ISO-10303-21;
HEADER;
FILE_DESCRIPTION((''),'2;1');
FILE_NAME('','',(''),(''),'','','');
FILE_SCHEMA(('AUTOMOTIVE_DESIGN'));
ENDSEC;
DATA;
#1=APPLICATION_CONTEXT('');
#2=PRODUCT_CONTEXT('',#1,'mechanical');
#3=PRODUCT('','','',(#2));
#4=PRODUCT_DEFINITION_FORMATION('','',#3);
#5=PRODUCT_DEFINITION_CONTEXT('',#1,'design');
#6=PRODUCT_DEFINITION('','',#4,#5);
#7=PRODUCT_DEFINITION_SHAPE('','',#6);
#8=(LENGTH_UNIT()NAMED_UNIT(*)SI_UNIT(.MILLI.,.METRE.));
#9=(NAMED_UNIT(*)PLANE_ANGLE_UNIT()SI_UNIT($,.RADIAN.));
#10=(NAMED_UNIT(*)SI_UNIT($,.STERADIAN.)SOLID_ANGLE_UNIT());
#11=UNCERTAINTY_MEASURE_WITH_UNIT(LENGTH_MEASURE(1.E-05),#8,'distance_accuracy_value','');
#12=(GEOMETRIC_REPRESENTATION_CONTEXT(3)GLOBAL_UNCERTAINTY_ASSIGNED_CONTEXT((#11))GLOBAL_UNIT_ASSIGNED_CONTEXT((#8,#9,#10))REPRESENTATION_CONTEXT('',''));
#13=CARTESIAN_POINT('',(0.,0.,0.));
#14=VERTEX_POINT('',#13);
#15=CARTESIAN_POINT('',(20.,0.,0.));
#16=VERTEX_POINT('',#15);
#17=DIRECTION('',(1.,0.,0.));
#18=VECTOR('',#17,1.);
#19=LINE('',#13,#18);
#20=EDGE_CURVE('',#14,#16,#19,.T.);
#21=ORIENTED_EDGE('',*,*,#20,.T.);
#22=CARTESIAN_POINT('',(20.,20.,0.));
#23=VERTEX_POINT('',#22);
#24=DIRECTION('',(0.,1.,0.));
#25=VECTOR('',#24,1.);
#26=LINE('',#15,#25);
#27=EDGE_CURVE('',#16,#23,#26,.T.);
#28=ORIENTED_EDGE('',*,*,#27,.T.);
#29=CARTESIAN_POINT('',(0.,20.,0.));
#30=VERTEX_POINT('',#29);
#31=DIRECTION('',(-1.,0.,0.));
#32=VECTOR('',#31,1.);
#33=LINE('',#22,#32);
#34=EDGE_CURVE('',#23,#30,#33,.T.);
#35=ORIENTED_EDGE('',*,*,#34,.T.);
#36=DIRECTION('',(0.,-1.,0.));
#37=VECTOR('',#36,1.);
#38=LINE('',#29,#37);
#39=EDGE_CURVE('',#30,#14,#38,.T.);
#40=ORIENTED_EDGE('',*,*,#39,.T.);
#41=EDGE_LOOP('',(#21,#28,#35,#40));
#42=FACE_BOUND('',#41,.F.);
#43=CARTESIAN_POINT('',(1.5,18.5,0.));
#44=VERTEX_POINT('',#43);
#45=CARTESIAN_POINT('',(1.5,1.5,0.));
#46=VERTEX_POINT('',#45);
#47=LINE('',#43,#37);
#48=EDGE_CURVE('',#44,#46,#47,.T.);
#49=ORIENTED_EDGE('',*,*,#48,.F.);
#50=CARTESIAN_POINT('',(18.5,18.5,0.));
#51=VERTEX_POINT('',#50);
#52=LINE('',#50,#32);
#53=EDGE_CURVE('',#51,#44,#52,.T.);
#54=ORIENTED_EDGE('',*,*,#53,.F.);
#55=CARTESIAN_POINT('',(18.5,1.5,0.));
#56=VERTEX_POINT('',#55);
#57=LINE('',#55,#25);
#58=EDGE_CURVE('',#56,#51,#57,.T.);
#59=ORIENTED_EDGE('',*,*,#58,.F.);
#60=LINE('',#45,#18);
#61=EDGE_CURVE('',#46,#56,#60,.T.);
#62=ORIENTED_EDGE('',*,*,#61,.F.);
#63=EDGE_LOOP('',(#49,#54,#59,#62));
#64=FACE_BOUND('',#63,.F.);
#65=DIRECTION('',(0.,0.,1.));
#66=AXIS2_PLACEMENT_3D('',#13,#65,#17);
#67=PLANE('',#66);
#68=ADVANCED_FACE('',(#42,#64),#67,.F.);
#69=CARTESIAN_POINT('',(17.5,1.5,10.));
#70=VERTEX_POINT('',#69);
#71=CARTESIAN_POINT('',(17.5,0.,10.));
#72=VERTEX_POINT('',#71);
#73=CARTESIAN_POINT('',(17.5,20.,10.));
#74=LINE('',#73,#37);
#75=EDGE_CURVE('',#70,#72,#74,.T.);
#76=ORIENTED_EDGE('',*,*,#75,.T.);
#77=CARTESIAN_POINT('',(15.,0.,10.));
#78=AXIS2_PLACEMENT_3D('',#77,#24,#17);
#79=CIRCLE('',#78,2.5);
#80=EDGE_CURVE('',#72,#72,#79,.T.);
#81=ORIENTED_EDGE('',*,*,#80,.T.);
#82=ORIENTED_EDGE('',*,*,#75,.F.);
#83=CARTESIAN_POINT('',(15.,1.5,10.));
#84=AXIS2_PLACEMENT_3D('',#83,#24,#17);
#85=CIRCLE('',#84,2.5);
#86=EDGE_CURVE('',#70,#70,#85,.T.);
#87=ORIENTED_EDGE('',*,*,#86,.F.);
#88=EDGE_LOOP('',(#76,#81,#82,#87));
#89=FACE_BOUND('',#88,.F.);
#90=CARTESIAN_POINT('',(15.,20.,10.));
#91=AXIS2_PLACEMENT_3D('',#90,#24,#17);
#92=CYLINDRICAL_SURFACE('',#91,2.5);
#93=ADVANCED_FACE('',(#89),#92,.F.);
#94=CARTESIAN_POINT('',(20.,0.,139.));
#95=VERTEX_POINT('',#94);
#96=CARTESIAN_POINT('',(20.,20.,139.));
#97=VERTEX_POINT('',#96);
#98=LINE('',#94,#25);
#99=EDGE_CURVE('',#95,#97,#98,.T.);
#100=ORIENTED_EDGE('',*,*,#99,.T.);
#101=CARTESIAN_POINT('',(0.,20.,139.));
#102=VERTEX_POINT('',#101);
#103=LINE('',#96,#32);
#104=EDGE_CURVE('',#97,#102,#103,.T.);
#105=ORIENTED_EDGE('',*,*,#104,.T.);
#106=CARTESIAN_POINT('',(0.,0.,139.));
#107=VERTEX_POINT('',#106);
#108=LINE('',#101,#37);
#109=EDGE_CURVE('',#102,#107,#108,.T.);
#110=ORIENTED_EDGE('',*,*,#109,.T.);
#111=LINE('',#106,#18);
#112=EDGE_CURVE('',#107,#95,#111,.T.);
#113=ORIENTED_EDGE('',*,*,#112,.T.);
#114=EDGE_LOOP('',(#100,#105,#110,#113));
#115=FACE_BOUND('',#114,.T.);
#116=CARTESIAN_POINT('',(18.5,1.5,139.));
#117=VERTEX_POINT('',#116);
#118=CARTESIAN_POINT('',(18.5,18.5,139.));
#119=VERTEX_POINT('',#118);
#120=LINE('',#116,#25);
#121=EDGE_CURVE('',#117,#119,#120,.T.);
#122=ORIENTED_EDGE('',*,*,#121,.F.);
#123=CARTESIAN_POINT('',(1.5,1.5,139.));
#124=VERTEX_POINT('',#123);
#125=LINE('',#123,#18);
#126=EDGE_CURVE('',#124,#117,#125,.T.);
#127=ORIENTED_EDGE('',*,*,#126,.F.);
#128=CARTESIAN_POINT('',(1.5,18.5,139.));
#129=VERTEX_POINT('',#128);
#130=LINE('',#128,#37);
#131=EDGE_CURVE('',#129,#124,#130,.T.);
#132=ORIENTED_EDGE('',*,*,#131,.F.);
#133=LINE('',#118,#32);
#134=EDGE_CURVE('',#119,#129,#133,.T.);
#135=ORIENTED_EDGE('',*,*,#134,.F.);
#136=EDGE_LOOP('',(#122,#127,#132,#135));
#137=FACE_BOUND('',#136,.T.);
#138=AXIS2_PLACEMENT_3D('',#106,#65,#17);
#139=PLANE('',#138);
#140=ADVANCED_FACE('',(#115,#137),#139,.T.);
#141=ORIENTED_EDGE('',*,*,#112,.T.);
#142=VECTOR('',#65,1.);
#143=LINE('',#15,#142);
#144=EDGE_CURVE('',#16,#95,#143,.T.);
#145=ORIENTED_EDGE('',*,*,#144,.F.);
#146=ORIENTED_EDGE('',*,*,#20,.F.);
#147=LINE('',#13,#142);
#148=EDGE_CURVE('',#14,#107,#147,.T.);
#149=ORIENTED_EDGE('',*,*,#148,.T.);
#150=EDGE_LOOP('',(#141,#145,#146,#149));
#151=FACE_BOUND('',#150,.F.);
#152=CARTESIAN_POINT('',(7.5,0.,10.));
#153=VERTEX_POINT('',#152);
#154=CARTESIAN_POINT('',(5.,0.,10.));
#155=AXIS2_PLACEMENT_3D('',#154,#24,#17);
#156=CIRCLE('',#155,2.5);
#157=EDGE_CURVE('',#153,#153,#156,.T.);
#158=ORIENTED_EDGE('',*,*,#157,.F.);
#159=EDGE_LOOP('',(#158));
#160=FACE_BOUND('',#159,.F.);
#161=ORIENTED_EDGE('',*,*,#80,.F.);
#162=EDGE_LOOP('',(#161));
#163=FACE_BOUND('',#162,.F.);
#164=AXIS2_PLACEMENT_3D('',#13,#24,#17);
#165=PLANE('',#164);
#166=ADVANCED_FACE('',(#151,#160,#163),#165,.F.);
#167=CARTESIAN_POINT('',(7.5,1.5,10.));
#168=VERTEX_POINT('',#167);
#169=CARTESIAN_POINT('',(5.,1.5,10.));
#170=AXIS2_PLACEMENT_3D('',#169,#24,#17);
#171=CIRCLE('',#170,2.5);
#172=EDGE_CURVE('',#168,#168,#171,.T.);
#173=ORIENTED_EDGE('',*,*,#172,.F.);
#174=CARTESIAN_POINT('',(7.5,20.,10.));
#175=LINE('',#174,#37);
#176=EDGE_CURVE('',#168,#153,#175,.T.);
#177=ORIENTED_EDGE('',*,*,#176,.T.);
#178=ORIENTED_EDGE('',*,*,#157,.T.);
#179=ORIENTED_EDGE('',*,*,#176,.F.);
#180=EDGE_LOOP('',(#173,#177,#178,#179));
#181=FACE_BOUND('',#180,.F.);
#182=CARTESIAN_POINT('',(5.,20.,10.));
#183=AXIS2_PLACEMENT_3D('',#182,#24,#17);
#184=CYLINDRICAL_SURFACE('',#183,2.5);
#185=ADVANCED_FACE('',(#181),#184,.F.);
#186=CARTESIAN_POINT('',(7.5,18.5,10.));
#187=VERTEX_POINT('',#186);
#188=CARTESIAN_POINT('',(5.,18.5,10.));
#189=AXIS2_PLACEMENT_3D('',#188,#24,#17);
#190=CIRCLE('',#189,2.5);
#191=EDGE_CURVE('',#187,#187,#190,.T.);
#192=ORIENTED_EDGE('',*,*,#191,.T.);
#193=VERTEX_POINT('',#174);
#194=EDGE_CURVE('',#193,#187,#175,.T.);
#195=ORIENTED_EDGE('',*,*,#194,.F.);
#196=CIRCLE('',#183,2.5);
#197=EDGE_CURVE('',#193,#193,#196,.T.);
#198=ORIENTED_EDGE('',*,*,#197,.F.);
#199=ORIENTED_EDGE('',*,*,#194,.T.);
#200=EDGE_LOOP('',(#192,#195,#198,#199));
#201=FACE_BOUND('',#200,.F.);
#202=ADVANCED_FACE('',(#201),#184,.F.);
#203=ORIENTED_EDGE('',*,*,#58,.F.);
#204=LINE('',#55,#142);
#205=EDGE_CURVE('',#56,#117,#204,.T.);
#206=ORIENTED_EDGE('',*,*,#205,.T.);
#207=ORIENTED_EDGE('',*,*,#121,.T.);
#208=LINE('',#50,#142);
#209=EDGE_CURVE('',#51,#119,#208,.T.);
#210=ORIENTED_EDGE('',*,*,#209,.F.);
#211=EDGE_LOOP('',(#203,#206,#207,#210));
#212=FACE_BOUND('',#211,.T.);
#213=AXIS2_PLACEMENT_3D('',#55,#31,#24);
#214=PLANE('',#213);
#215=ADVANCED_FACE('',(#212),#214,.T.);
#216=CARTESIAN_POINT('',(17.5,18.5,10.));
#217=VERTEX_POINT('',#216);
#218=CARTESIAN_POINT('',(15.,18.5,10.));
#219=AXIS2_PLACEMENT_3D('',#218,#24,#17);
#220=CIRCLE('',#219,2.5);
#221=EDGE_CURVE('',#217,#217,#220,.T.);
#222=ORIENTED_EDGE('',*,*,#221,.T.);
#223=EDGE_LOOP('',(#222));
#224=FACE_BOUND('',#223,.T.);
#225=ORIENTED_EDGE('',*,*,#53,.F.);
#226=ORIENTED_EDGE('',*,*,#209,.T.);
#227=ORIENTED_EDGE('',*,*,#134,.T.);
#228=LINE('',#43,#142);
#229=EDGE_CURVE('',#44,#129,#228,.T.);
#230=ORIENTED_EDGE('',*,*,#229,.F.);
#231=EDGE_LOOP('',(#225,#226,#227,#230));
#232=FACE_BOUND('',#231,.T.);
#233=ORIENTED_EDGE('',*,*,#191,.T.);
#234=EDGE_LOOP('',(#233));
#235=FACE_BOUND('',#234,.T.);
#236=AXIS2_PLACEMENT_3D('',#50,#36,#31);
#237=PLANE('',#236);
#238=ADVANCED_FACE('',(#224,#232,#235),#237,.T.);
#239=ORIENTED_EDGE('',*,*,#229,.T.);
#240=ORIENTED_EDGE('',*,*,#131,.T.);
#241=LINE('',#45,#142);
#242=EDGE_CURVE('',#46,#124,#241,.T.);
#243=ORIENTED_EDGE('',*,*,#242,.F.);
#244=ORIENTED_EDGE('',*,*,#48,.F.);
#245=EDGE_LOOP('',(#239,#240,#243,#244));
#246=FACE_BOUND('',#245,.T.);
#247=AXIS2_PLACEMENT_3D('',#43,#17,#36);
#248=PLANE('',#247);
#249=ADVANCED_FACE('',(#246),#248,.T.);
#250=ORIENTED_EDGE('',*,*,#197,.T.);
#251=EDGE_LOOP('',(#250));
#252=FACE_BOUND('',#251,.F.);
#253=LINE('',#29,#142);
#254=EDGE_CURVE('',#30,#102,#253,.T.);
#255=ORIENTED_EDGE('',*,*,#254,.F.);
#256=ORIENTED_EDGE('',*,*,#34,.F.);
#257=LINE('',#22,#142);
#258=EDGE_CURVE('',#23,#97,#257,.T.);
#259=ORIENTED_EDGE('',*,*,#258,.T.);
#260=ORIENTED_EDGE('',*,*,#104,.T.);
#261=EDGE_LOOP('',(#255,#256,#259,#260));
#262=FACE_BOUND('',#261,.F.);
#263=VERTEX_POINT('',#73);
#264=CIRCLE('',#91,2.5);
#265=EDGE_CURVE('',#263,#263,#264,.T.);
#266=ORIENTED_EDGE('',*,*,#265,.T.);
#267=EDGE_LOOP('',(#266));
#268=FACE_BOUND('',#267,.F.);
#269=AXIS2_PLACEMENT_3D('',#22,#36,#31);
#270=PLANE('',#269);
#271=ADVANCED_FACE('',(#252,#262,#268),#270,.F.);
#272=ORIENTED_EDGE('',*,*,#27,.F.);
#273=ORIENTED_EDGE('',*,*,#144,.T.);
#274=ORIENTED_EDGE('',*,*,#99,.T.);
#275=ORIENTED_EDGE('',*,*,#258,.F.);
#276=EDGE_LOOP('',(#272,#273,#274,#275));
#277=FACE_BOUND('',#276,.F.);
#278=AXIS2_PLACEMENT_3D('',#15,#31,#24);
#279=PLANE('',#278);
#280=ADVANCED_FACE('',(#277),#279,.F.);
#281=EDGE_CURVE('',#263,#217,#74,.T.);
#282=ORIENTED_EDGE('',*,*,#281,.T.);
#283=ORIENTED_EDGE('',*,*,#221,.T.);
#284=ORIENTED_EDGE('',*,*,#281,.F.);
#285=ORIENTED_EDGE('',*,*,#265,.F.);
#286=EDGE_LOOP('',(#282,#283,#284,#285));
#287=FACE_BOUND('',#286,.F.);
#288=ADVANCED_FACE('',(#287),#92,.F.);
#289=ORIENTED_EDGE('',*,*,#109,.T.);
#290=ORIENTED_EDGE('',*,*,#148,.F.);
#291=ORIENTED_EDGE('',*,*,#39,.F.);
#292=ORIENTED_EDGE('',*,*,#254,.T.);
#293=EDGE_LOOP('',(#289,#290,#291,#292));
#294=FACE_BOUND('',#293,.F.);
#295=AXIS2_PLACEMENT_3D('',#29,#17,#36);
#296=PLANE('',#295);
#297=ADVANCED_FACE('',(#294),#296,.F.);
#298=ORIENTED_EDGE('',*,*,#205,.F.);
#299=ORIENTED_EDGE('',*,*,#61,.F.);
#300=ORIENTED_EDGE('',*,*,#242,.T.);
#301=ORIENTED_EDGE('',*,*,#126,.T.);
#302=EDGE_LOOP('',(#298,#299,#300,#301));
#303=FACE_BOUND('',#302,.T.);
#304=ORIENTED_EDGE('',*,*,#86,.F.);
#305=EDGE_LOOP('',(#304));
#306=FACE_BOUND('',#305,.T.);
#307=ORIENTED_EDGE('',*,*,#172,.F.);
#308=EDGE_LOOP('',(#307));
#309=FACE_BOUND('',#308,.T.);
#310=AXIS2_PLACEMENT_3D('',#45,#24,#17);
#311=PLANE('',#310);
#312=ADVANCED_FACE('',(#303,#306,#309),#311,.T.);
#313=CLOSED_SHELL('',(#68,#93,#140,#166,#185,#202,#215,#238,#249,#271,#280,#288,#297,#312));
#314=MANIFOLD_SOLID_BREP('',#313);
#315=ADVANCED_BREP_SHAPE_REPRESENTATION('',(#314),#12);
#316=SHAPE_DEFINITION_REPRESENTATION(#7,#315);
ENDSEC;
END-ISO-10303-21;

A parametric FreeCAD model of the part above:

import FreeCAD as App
import Part
import Sketcher
from FreeCAD import Vector


def add_polygon(sketch, points):
    """Adds a closed chain of lines whose ends are joined by coincident constraints."""
    first, n = sketch.GeometryCount, len(points)
    for a, b in zip(points, points[1:] + points[:1]):
        sketch.addGeometry(Part.LineSegment(App.Vector(*a, 0), App.Vector(*b, 0)), False)
    for i in range(n):
        sketch.addConstraint(Sketcher.Constraint("Coincident", first + i, 2, first + (i + 1) % n, 1))

doc = App.newDocument("Part")
body = doc.addObject("PartDesign::Body", "Body")

sketch1 = body.newObject("Sketcher::SketchObject", "Sketch")
sketch1.AttachmentSupport = (doc.getObject("XY_Plane"), [""])
sketch1.MapMode = "FlatFace"
add_polygon(sketch1, [(0, 20), (0, 0), (20, 0), (20, 20)])
add_polygon(sketch1, [(18, 2), (2, 2), (2, 18), (18, 18)])
sketch1.addConstraint(Sketcher.Constraint("Vertical", 0))
sketch1.addConstraint(Sketcher.Constraint("Horizontal", 1))
sketch1.addConstraint(Sketcher.Constraint("Vertical", 2))
sketch1.addConstraint(Sketcher.Constraint("Horizontal", 3))
sketch1.addConstraint(Sketcher.Constraint("Horizontal", 4))
sketch1.addConstraint(Sketcher.Constraint("Vertical", 5))
sketch1.addConstraint(Sketcher.Constraint("Horizontal", 6))
sketch1.addConstraint(Sketcher.Constraint("Vertical", 7))
sketch1.addConstraint(Sketcher.Constraint("Coincident", 0, 2, -1, 1))
sketch1.addConstraint(Sketcher.Constraint("Equal", 3, 0))
sketch1.addConstraint(Sketcher.Constraint("Equal", 6, 5))
sketch1.addConstraint(Sketcher.Constraint("DistanceX", 1, 1, 1, 2, 20.0))
sketch1.addConstraint(Sketcher.Constraint("DistanceX", -1, 1, 4, 2, 1.5))
sketch1.addConstraint(Sketcher.Constraint("DistanceY", -1, 1, 4, 2, 1.5))
sketch1.addConstraint(Sketcher.Constraint("DistanceY", 5, 2, 3, 2, 1.5))
pad1 = body.newObject("PartDesign::Pad", "Pad")
pad1.Profile = sketch1
pad1.Length = 139

sketch2 = body.newObject("Sketcher::SketchObject", "Sketch001")
sketch2.AttachmentSupport = (doc.getObject("XZ_Plane"), [""])
sketch2.MapMode = "FlatFace"
sketch2.AttachmentOffset = App.Placement(Vector(0, 0, -20), App.Rotation())
sketch2.addGeometry(Part.Circle(Vector(5, 10, 0), Vector(0, 0, 1), 2.5), False)
sketch2.addGeometry(Part.Circle(Vector(15, 10, 0), Vector(0, 0, 1), 2.5), False)
sketch2.addConstraint(Sketcher.Constraint("Equal", 0, 1))
sketch2.addConstraint(Sketcher.Constraint("Horizontal", 0, 3, 1, 3))
sketch2.addConstraint(Sketcher.Constraint("Diameter", 0, 5.0))
sketch2.addConstraint(Sketcher.Constraint("DistanceX", -1, 1, 0, 3, 5.0))
sketch2.addConstraint(Sketcher.Constraint("DistanceY", -1, 1, 0, 3, 10.0))
sketch2.addConstraint(Sketcher.Constraint("DistanceX", 0, 3, 1, 3, 10.0))
pocket1 = body.newObject("PartDesign::Pocket", "Pocket")
pocket1.Profile = sketch2
pocket1.Type = "ThroughAll"
pocket1.Reversed = True

doc.recompute()
